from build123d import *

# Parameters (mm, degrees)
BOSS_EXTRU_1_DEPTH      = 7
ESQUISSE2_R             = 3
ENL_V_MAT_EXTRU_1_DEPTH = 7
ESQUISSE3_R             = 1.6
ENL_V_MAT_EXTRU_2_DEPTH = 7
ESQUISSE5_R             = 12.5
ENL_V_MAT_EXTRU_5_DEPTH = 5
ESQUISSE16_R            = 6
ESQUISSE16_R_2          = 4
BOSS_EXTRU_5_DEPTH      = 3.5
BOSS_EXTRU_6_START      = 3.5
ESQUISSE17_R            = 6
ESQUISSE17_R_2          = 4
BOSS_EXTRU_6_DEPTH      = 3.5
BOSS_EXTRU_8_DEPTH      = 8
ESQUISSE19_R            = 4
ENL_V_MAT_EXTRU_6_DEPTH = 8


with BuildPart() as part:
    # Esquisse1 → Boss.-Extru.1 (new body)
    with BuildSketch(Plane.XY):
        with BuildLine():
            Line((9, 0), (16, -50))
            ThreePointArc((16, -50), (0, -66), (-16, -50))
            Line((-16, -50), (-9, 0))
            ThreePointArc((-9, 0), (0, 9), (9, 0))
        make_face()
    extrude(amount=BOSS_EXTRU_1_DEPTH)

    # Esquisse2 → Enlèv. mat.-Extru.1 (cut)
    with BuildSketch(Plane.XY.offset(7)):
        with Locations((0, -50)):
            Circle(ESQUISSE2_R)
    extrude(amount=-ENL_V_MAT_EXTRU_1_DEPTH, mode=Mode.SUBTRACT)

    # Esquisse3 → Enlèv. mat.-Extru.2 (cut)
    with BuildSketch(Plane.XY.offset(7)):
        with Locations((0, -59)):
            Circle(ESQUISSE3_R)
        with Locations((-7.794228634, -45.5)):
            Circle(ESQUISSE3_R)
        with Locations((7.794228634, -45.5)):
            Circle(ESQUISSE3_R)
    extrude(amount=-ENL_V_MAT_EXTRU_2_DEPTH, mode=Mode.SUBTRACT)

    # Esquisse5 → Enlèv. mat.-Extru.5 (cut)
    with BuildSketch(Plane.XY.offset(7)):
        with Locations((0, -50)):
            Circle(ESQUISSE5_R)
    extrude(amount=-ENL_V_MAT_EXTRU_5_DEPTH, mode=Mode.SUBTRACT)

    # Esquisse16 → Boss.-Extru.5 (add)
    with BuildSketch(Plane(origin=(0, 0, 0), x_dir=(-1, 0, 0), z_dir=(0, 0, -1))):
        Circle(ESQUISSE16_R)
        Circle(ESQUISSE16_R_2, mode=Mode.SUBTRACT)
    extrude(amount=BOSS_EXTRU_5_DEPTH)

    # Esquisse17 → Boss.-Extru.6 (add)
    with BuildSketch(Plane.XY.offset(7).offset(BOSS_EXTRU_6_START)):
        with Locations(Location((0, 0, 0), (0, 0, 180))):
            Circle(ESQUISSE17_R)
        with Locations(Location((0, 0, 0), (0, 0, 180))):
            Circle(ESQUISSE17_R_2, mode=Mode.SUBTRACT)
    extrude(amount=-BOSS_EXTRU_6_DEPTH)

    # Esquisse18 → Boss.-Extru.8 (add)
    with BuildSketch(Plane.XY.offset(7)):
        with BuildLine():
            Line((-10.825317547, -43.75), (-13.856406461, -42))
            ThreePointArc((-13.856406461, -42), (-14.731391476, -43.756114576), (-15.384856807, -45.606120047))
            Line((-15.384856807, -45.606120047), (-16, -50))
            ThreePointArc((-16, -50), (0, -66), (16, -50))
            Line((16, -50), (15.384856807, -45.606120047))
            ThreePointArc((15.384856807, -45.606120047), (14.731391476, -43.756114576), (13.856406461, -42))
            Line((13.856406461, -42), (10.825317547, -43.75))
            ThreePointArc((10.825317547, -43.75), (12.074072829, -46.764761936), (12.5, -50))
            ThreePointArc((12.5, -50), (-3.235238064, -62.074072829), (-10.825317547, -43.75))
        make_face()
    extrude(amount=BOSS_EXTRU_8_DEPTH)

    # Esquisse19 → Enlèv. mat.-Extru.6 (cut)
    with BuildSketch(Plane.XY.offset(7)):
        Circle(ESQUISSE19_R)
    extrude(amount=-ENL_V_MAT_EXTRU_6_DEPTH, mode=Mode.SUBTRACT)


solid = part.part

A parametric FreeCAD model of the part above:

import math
import FreeCAD as App
import Part
import Sketcher
Q = App.Units.Quantity

doc = App.newDocument("Part")
body = doc.addObject("PartDesign::Body", "Body")

sketch1 = body.newObject("Sketcher::SketchObject", "Sketch")
sketch1.AttachmentSupport = (doc.getObject("XY_Plane"), [""])
sketch1.MapMode = "FlatFace"
sketch1.addGeometry(Part.LineSegment(App.Vector(16, -50, 0), App.Vector(9, 0, 0)), False)
sketch1.addGeometry(Part.ArcOfCircle(Part.Circle(App.Vector(0, 0, 0), App.Vector(0, 0, 1), 9), math.radians(0), math.radians(180)), False)
sketch1.addGeometry(Part.LineSegment(App.Vector(-9, 0, 0), App.Vector(-16, -50, 0)), False)
sketch1.addGeometry(Part.ArcOfCircle(Part.Circle(App.Vector(0, -50, 0), App.Vector(0, 0, 1), 16), math.radians(180), math.radians(360)), False)
sketch1.addConstraint(Sketcher.Constraint("Coincident", 0, 2, 1, 1))
sketch1.addConstraint(Sketcher.Constraint("Coincident", 1, 2, 2, 1))
sketch1.addConstraint(Sketcher.Constraint("Coincident", 2, 2, 3, 1))
sketch1.addConstraint(Sketcher.Constraint("Coincident", 3, 2, 0, 1))
sketch1.addConstraint(Sketcher.Constraint("Coincident", 1, 3, -1, 1))
sketch1.addConstraint(Sketcher.Constraint("Symmetric", 2, 2, 3, 2, -2))
sketch1.addConstraint(Sketcher.Constraint("PointOnObject", 0, 2, -1))
sketch1.addConstraint(Sketcher.Constraint("PointOnObject", 1, 2, -1))
sketch1.addConstraint(Sketcher.Constraint("Horizontal", 3, 3, 2, 2))
sketch1.addConstraint(Sketcher.Constraint("Radius", 1, Q("9 mm")))
sketch1.addConstraint(Sketcher.Constraint("Radius", 3, Q("16 mm")))
sketch1.addConstraint(Sketcher.Constraint("DistanceY", 3, 3, -1, 1, Q("50 mm")))
pad1 = body.newObject("PartDesign::Pad", "Pad")
pad1.Profile = sketch1
pad1.Length = 7

sketch2 = body.newObject("Sketcher::SketchObject", "Sketch001")
sketch2.AttachmentSupport = (doc.getObject("XY_Plane"), [""])
sketch2.MapMode = "FlatFace"
sketch2.AttachmentOffset = App.Placement(App.Vector(0, 0, 7), App.Rotation())
sketch2.addGeometry(Part.Circle(App.Vector(0, -50, 0), App.Vector(0, 0, 1), 3), False)
sketch2.addConstraint(Sketcher.Constraint("PointOnObject", 0, 3, -2))
sketch2.addConstraint(Sketcher.Constraint("Diameter", 0, Q("6 mm")))
sketch2.addConstraint(Sketcher.Constraint("DistanceY", 0, 3, -1, 1, Q("50 mm")))
pocket1 = body.newObject("PartDesign::Pocket", "Pocket")
pocket1.Profile = sketch2
pocket1.Length = 7

sketch3 = body.newObject("Sketcher::SketchObject", "Sketch002")
sketch3.AttachmentSupport = (doc.getObject("XY_Plane"), [""])
sketch3.MapMode = "FlatFace"
sketch3.AttachmentOffset = App.Placement(App.Vector(0, 0, 7), App.Rotation())
sketch3.addGeometry(Part.Circle(App.Vector(0, -59, 0), App.Vector(0, 0, 1), 1.6), False)
sketch3.addGeometry(Part.Circle(App.Vector(-7.8, -45.5, 0), App.Vector(0, 0, 1), 1.6), False)
sketch3.addGeometry(Part.Circle(App.Vector(7.8, -45.5, 0), App.Vector(0, 0, 1), 1.6), False)
sketch3.addConstraint(Sketcher.Constraint("Equal", 0, 1))
sketch3.addConstraint(Sketcher.Constraint("Equal", 1, 2))
sketch3.addConstraint(Sketcher.Constraint("Symmetric", 1, 3, 2, 3, -2))
sketch3.addConstraint(Sketcher.Constraint("PointOnObject", 0, 3, -2))
sketch3.addConstraint(Sketcher.Constraint("Diameter", 0, Q("3.2 mm")))
sketch3.addConstraint(Sketcher.Constraint("DistanceY", 0, 3, -1, 1, Q("59 mm")))
sketch3.addConstraint(Sketcher.Constraint("DistanceY", 1, 3, -1, 1, Q("45.5 mm")))
sketch3.addConstraint(Sketcher.Constraint("DistanceX", 1, 3, -1, 1, Q("7.794229 mm")))
pocket2 = body.newObject("PartDesign::Pocket", "Pocket001")
pocket2.Profile = sketch3
pocket2.Length = 7

sketch4 = body.newObject("Sketcher::SketchObject", "Sketch003")
sketch4.AttachmentSupport = (doc.getObject("XY_Plane"), [""])
sketch4.MapMode = "FlatFace"
sketch4.AttachmentOffset = App.Placement(App.Vector(0, 0, 7), App.Rotation())
sketch4.addGeometry(Part.Circle(App.Vector(0, -50, 0), App.Vector(0, 0, 1), 12), False)
sketch4.addConstraint(Sketcher.Constraint("PointOnObject", 0, 3, -2))
sketch4.addConstraint(Sketcher.Constraint("Diameter", 0, Q("25 mm")))
sketch4.addConstraint(Sketcher.Constraint("DistanceY", 0, 3, -1, 1, Q("50 mm")))
pocket3 = body.newObject("PartDesign::Pocket", "Pocket002")
pocket3.Profile = sketch4
pocket3.Length = 5

sketch5 = body.newObject("Sketcher::SketchObject", "Sketch004")
sketch5.AttachmentSupport = (doc.getObject("XY_Plane"), [""])
sketch5.MapMode = "FlatFace"
sketch5.addGeometry(Part.Circle(App.Vector(0, 0, 0), App.Vector(0, 0, 1), 6), False)
sketch5.addGeometry(Part.Circle(App.Vector(0, 0, 0), App.Vector(0, 0, 1), 4), False)
sketch5.addConstraint(Sketcher.Constraint("Coincident", 0, 3, -1, 1))
sketch5.addConstraint(Sketcher.Constraint("Coincident", 1, 3, -1, 1))
sketch5.addConstraint(Sketcher.Constraint("Diameter", 0, Q("12 mm")))
sketch5.addConstraint(Sketcher.Constraint("Diameter", 1, Q("8 mm")))
pad2 = body.newObject("PartDesign::Pad", "Pad001")
pad2.Profile = sketch5
pad2.Length = 3.5
pad2.Reversed = True

sketch6 = body.newObject("Sketcher::SketchObject", "Sketch005")
sketch6.AttachmentSupport = (doc.getObject("XY_Plane"), [""])
sketch6.MapMode = "FlatFace"
sketch6.AttachmentOffset = App.Placement(App.Vector(0, 0, 10.5), App.Rotation())
sketch6.addGeometry(Part.Circle(App.Vector(0, 0, 0), App.Vector(0, 0, 1), 6), False)
sketch6.addGeometry(Part.Circle(App.Vector(0, 0, 0), App.Vector(0, 0, 1), 4), False)
sketch6.addConstraint(Sketcher.Constraint("Coincident", 0, 3, -1, 1))
sketch6.addConstraint(Sketcher.Constraint("Coincident", 1, 3, -1, 1))
sketch6.addConstraint(Sketcher.Constraint("Diameter", 0, Q("12 mm")))
sketch6.addConstraint(Sketcher.Constraint("Diameter", 1, Q("8 mm")))
pad3 = body.newObject("PartDesign::Pad", "Pad002")
pad3.Profile = sketch6
pad3.Length = 3.5
pad3.Reversed = True

sketch7 = body.newObject("Sketcher::SketchObject", "Sketch006")
sketch7.AttachmentSupport = (doc.getObject("XY_Plane"), [""])
sketch7.MapMode = "FlatFace"
sketch7.AttachmentOffset = App.Placement(App.Vector(0, 0, 7), App.Rotation())
sketch7.addGeometry(Part.LineSegment(App.Vector(-10.8, -43.8, 0), App.Vector(-13.9, -42, 0)), False)
sketch7.addGeometry(Part.ArcOfCircle(Part.Circle(App.Vector(0, -50, 0), App.Vector(0, 0, 1), 16), math.radians(150), math.radians(164.06)), False)
sketch7.addGeometry(Part.LineSegment(App.Vector(-15.4, -45.6, 0), App.Vector(-16, -50, 0)), False)
sketch7.addGeometry(Part.ArcOfCircle(Part.Circle(App.Vector(0, -50, 0), App.Vector(0, 0, 1), 16), math.radians(180), math.radians(360)), False)
sketch7.addGeometry(Part.LineSegment(App.Vector(16, -50, 0), App.Vector(15.4, -45.6, 0)), False)
sketch7.addGeometry(Part.ArcOfCircle(Part.Circle(App.Vector(0, -50, 0), App.Vector(0, 0, 1), 16), math.radians(15.94), math.radians(30)), False)
sketch7.addGeometry(Part.LineSegment(App.Vector(13.9, -42, 0), App.Vector(10.8, -43.8, 0)), False)
sketch7.addGeometry(Part.ArcOfCircle(Part.Circle(App.Vector(0, -50, 0), App.Vector(0, 0, 1), 12.5), math.radians(0), math.radians(30)), False)
sketch7.addGeometry(Part.ArcOfCircle(Part.Circle(App.Vector(0, -50, 0), App.Vector(0, 0, 1), 12.5), math.radians(150), math.radians(360)), False)
sketch7.addConstraint(Sketcher.Constraint("Coincident", 0, 2, 1, 1))
sketch7.addConstraint(Sketcher.Constraint("Coincident", 1, 2, 2, 1))
sketch7.addConstraint(Sketcher.Constraint("Coincident", 2, 2, 3, 1))
sketch7.addConstraint(Sketcher.Constraint("Coincident", 3, 2, 4, 1))
sketch7.addConstraint(Sketcher.Constraint("Coincident", 4, 2, 5, 1))
sketch7.addConstraint(Sketcher.Constraint("Coincident", 5, 2, 6, 1))
sketch7.addConstraint(Sketcher.Constraint("Coincident", 6, 2, 7, 2))
sketch7.addConstraint(Sketcher.Constraint("Tangent", 7, 1, 8, 2))
sketch7.addConstraint(Sketcher.Constraint("Coincident", 8, 1, 0, 1))
sketch7.addConstraint(Sketcher.Constraint("Coincident", 3, 3, 1, 3))
sketch7.addConstraint(Sketcher.Constraint("Coincident", 5, 3, 1, 3))
sketch7.addConstraint(Sketcher.Constraint("Coincident", 7, 3, 1, 3))
sketch7.addConstraint(Sketcher.Constraint("Equal", 1, 3))
sketch7.addConstraint(Sketcher.Constraint("Equal", 3, 5))
sketch7.addConstraint(Sketcher.Constraint("Equal", 7, 8))
sketch7.addConstraint(Sketcher.Constraint("Symmetric", 2, 2, 3, 2, -2))
sketch7.addConstraint(Sketcher.Constraint("Horizontal", 8, 3, 2, 2))
sketch7.addConstraint(Sketcher.Constraint("Horizontal", 1, 2, 4, 2))
sketch7.addConstraint(Sketcher.Constraint("Horizontal", 0, 2, 5, 2))
sketch7.addConstraint(Sketcher.Constraint("Horizontal", 3, 2, 7, 1))
sketch7.addConstraint(Sketcher.Constraint("Horizontal", 6, 2, 8, 1))
sketch7.addConstraint(Sketcher.Constraint("Radius", 1, Q("16 mm")))
sketch7.addConstraint(Sketcher.Constraint("Radius", 7, Q("12.5 mm")))
sketch7.addConstraint(Sketcher.Constraint("Angle", 0, Q("150 deg")))
sketch7.addConstraint(Sketcher.Constraint("DistanceY", 1, 3, -1, 1, Q("50 mm")))
sketch7.addConstraint(Sketcher.Constraint("DistanceY", 0, 2, -1, 1, Q("42 mm")))
sketch7.addConstraint(Sketcher.Constraint("Distance", 2, Q("4.436731 mm")))
pad4 = body.newObject("PartDesign::Pad", "Pad003")
pad4.Profile = sketch7
pad4.Length = 8

sketch8 = body.newObject("Sketcher::SketchObject", "Sketch007")
sketch8.AttachmentSupport = (doc.getObject("XY_Plane"), [""])
sketch8.MapMode = "FlatFace"
sketch8.AttachmentOffset = App.Placement(App.Vector(0, 0, 7), App.Rotation())
sketch8.addGeometry(Part.Circle(App.Vector(0, 0, 0), App.Vector(0, 0, 1), 4), False)
sketch8.addConstraint(Sketcher.Constraint("Coincident", 0, 3, -1, 1))
sketch8.addConstraint(Sketcher.Constraint("Diameter", 0, Q("8 mm")))
pocket4 = body.newObject("PartDesign::Pocket", "Pocket003")
pocket4.Profile = sketch8
pocket4.Length = 8

doc.recompute()
